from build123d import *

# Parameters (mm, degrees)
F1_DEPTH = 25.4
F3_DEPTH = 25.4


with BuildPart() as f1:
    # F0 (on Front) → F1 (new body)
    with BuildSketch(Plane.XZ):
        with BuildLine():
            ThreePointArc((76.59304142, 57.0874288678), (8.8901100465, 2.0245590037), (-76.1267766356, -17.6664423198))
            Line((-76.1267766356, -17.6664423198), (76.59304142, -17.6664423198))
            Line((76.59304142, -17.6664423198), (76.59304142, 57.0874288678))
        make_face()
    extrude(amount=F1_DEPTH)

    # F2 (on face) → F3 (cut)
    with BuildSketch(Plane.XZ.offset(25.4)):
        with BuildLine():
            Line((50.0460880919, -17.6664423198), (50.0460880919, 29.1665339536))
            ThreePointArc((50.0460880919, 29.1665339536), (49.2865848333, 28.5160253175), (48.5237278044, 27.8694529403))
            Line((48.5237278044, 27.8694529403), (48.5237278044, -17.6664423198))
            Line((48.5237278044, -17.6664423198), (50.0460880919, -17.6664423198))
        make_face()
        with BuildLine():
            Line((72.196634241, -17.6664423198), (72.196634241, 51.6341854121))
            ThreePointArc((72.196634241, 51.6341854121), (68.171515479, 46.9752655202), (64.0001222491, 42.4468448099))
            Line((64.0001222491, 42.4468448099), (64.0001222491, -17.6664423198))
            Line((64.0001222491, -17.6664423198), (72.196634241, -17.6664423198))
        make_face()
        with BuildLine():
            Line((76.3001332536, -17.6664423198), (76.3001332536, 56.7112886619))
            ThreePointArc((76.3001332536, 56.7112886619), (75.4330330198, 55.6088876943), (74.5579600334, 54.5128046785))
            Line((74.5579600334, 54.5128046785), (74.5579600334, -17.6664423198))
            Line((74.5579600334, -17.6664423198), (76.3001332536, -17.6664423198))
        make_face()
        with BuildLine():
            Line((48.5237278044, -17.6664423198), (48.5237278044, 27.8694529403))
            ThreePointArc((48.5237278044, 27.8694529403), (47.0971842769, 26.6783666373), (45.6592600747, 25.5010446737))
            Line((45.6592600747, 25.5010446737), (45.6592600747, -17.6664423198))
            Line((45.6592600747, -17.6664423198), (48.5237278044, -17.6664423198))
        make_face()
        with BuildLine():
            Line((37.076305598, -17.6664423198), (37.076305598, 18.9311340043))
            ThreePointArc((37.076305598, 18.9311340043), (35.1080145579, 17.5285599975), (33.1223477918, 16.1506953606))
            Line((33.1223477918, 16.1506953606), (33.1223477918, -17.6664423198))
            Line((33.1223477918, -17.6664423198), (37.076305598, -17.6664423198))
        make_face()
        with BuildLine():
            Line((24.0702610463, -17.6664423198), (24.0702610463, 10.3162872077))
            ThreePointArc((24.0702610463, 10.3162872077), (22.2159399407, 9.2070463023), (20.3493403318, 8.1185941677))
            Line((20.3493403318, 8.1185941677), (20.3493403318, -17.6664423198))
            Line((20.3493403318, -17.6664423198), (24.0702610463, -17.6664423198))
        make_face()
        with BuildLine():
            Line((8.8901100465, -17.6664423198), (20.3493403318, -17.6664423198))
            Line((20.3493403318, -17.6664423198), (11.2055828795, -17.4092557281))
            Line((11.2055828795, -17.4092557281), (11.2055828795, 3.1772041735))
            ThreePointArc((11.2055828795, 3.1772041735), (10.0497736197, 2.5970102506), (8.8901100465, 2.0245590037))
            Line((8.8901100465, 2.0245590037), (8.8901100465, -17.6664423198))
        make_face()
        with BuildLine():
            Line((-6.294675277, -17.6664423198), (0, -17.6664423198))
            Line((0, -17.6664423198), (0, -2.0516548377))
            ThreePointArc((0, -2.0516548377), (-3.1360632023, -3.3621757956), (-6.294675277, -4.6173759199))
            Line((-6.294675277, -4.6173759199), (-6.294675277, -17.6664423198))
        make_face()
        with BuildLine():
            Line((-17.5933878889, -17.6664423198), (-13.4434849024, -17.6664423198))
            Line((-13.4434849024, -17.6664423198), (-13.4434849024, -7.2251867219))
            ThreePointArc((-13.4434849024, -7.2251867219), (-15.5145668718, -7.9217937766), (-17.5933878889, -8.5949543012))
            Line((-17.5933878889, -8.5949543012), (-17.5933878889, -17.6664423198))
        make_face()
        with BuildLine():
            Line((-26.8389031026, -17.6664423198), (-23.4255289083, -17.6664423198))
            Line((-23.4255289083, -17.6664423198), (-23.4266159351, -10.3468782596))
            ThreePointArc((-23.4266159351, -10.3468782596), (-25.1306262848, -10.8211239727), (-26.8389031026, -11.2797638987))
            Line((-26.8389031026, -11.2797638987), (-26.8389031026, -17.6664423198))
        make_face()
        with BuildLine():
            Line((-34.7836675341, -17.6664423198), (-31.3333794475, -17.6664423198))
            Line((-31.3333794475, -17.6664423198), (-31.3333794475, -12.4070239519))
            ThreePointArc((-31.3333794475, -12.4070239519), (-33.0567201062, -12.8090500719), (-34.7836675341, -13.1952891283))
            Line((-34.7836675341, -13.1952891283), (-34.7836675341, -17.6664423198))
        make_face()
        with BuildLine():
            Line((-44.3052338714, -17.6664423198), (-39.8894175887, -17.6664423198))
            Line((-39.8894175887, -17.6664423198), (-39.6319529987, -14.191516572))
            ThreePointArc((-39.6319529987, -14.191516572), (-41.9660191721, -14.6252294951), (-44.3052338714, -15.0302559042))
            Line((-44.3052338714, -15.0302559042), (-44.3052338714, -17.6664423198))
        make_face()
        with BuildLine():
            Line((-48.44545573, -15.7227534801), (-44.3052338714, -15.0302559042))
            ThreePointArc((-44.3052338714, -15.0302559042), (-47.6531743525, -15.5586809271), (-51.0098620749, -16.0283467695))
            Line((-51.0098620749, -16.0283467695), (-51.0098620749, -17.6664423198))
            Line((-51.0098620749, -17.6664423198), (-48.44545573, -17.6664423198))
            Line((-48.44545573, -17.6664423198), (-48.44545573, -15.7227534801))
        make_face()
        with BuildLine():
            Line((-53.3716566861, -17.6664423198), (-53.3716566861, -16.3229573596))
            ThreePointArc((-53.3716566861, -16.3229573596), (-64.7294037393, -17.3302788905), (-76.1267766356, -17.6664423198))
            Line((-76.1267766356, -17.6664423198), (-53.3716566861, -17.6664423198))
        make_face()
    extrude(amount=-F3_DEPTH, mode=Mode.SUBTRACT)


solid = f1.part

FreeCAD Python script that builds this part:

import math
import FreeCAD as App
import Part
import Sketcher
Q = App.Units.Quantity

doc = App.newDocument("Part")
params = doc.addObject("Spreadsheet::Sheet", "Params")
for row, (alias, value) in enumerate([
    ("pad1_length", "1 in"),
    ("pocket1_length", "1 in"),
], start=1):
    params.set(f"A{row}", alias)
    params.set(f"B{row}", "=" + value)
    params.setAlias(f"B{row}", alias)

body = doc.addObject("PartDesign::Body", "Body")
body.AllowCompound = True

# Sketch on XZ plane
sketch1 = body.newObject("Sketcher::SketchObject", "Sketch")
sketch1.AttachmentSupport = (doc.getObject("XZ_Plane"), [""])
sketch1.MapMode = "FlatFace"
sketch1.addGeometry(Part.ArcOfCircle(Part.Circle(App.Vector(-76, 176, 0), App.Vector(0, 0, 1), 193), math.radians(-90), math.radians(-38)), False)
sketch1.addGeometry(Part.LineSegment(App.Vector(-76, -18, 0), App.Vector(77, -18, 0)), False)
sketch1.addGeometry(Part.LineSegment(App.Vector(77, -18, 0), App.Vector(77, 57, 0)), False)
sketch1.addConstraint(Sketcher.Constraint("Tangent", 0, 1, 1, 1))
sketch1.addConstraint(Sketcher.Constraint("Coincident", 1, 2, 2, 1))
sketch1.addConstraint(Sketcher.Constraint("Coincident", 2, 2, 0, 2))
sketch1.addConstraint(Sketcher.Constraint("Horizontal", 1))
sketch1.addConstraint(Sketcher.Constraint("Vertical", 2))
sketch1.addConstraint(Sketcher.Constraint("Radius", 0, Q("193.377839 mm")))
sketch1.addConstraint(Sketcher.Constraint("DistanceX", 1, 1, 1, 2, Q("152.719818 mm")))
sketch1.addConstraint(Sketcher.Constraint("DistanceX", -1, 1, 1, 2, Q("76.593041 mm")))
sketch1.addConstraint(Sketcher.Constraint("DistanceY", -1, 1, 2, 2, Q("57.087429 mm")))
pad1 = body.newObject("PartDesign::Pad", "Pad")
pad1.Profile = sketch1
pad1.setExpression("Length", "Params.pad1_length")

# Sketch on XZ plane
sketch2 = body.newObject("Sketcher::SketchObject", "Sketch001")
sketch2.AttachmentSupport = (doc.getObject("XZ_Plane"), [""])
sketch2.MapMode = "FlatFace"
sketch2.AttachmentOffset = App.Placement(App.Vector(0, 0, 1 * 25.4), App.Rotation())
sketch2.addGeometry(Part.LineSegment(App.Vector(50, -17.7, 0), App.Vector(50, 29.2, 0)), False)
sketch2.addGeometry(Part.ArcOfCircle(Part.Circle(App.Vector(-76.1, 175.7, 0), App.Vector(0, 0, 1), 193.4), math.radians(-49.86), math.radians(-49.27)), False)
sketch2.addGeometry(Part.ArcOfCircle(Part.Circle(App.Vector(-76.1, 175.7, 0), App.Vector(0, 0, 1), 193.4), math.radians(-50.97), math.radians(-49.86)), False)
sketch2.addGeometry(Part.LineSegment(App.Vector(45.7, 25.5, 0), App.Vector(45.7, -17.7, 0)), False)
sketch2.addGeometry(Part.LineSegment(App.Vector(45.7, -17.7, 0), App.Vector(50, -17.7, 0)), False)
sketch2.addGeometry(Part.LineSegment(App.Vector(72.2, -17.7, 0), App.Vector(72.2, 51.6, 0)), False)
sketch2.addGeometry(Part.ArcOfCircle(Part.Circle(App.Vector(-76.1, 175.7, 0), App.Vector(0, 0, 1), 193.4), math.radians(-43.56), math.radians(-39.91)), False)
sketch2.addGeometry(Part.LineSegment(App.Vector(64, 42.4, 0), App.Vector(64, -17.7, 0)), False)
sketch2.addGeometry(Part.LineSegment(App.Vector(64, -17.7, 0), App.Vector(72.2, -17.7, 0)), False)
sketch2.addGeometry(Part.LineSegment(App.Vector(76.3, -17.7, 0), App.Vector(76.3, 56.7, 0)), False)
sketch2.addGeometry(Part.ArcOfCircle(Part.Circle(App.Vector(-76.1, 175.7, 0), App.Vector(0, 0, 1), 193.4), math.radians(-38.81), math.radians(-37.98)), False)
sketch2.addGeometry(Part.LineSegment(App.Vector(74.6, 54.5, 0), App.Vector(74.6, -17.7, 0)), False)
sketch2.addGeometry(Part.LineSegment(App.Vector(74.6, -17.7, 0), App.Vector(76.3, -17.7, 0)), False)
sketch2.addGeometry(Part.LineSegment(App.Vector(37.1, -17.7, 0), App.Vector(37.1, 18.9, 0)), False)
sketch2.addGeometry(Part.ArcOfCircle(Part.Circle(App.Vector(-76.1, 175.7, 0), App.Vector(0, 0, 1), 193.4), math.radians(-55.6), math.radians(-54.17)), False)
sketch2.addGeometry(Part.LineSegment(App.Vector(33.1, 16.2, 0), App.Vector(33.1, -17.7, 0)), False)
sketch2.addGeometry(Part.LineSegment(App.Vector(33.1, -17.7, 0), App.Vector(37.1, -17.7, 0)), False)
sketch2.addGeometry(Part.LineSegment(App.Vector(24.1, -17.7, 0), App.Vector(24.1, 10.3, 0)), False)
sketch2.addGeometry(Part.ArcOfCircle(Part.Circle(App.Vector(-76.1, 175.7, 0), App.Vector(0, 0, 1), 193.4), math.radians(-60.07), math.radians(-58.79)), False)
sketch2.addGeometry(Part.LineSegment(App.Vector(20.3, 8.1, 0), App.Vector(20.3, -17.7, 0)), False)
sketch2.addGeometry(Part.LineSegment(App.Vector(20.3, -17.7, 0), App.Vector(24.1, -17.7, 0)), False)
sketch2.addGeometry(Part.LineSegment(App.Vector(8.9, -17.7, 0), App.Vector(20.3, -17.7, 0)), False)
sketch2.addGeometry(Part.LineSegment(App.Vector(20.3, -17.7, 0), App.Vector(11.2, -17.4, 0)), False)
sketch2.addGeometry(Part.LineSegment(App.Vector(11.2, -17.4, 0), App.Vector(11.2, 3.2, 0)), False)
sketch2.addGeometry(Part.ArcOfCircle(Part.Circle(App.Vector(-76.1, 175.7, 0), App.Vector(0, 0, 1), 193.4), math.radians(-63.92), math.radians(-63.15)), False)
sketch2.addGeometry(Part.LineSegment(App.Vector(8.9, 2, 0), App.Vector(8.9, -17.7, 0)), False)
sketch2.addGeometry(Part.LineSegment(App.Vector(-6.3, -17.7, 0), App.Vector(0, -17.7, 0)), False)
sketch2.addGeometry(Part.LineSegment(App.Vector(0, -17.7, 0), App.Vector(0, -2.1, 0)), False)
sketch2.addGeometry(Part.ArcOfCircle(Part.Circle(App.Vector(-76.1, 175.7, 0), App.Vector(0, 0, 1), 193.4), math.radians(-68.83), math.radians(-66.82)), False)
sketch2.addGeometry(Part.LineSegment(App.Vector(-6.3, -4.6, 0), App.Vector(-6.3, -17.7, 0)), False)
sketch2.addGeometry(Part.LineSegment(App.Vector(-17.6, -17.7, 0), App.Vector(-13.4, -17.7, 0)), False)
sketch2.addGeometry(Part.LineSegment(App.Vector(-13.4, -17.7, 0), App.Vector(-13.4, -7.2, 0)), False)
sketch2.addGeometry(Part.ArcOfCircle(Part.Circle(App.Vector(-76.1, 175.7, 0), App.Vector(0, 0, 1), 193.4), math.radians(-72.38), math.radians(-71.09)), False)
sketch2.addGeometry(Part.LineSegment(App.Vector(-17.6, -8.6, 0), App.Vector(-17.6, -17.7, 0)), False)
sketch2.addGeometry(Part.LineSegment(App.Vector(-26.8, -17.7, 0), App.Vector(-23.4, -17.7, 0)), False)
sketch2.addGeometry(Part.LineSegment(App.Vector(-23.4, -17.7, 0), App.Vector(-23.4, -10.3, 0)), False)
sketch2.addGeometry(Part.ArcOfCircle(Part.Circle(App.Vector(-76.1, 175.7, 0), App.Vector(0, 0, 1), 193.4), math.radians(-75.23), math.radians(-74.19)), False)
sketch2.addGeometry(Part.LineSegment(App.Vector(-26.8, -11.3, 0), App.Vector(-26.8, -17.7, 0)), False)
sketch2.addGeometry(Part.LineSegment(App.Vector(-34.8, -17.7, 0), App.Vector(-31.3, -17.7, 0)), False)
sketch2.addGeometry(Part.LineSegment(App.Vector(-31.3, -17.7, 0), App.Vector(-31.3, -12.4, 0)), False)
sketch2.addGeometry(Part.ArcOfCircle(Part.Circle(App.Vector(-76.1, 175.7, 0), App.Vector(0, 0, 1), 193.4), math.radians(-77.66), math.radians(-76.61)), False)
sketch2.addGeometry(Part.LineSegment(App.Vector(-34.8, -13.2, 0), App.Vector(-34.8, -17.7, 0)), False)
sketch2.addGeometry(Part.LineSegment(App.Vector(-44.3, -17.7, 0), App.Vector(-39.9, -17.7, 0)), False)
sketch2.addGeometry(Part.LineSegment(App.Vector(-39.9, -17.7, 0), App.Vector(-39.6, -14.2, 0)), False)
sketch2.addGeometry(Part.ArcOfCircle(Part.Circle(App.Vector(-76.1, 175.7, 0), App.Vector(0, 0, 1), 193.4), math.radians(-80.53), math.radians(-79.12)), False)
sketch2.addGeometry(Part.LineSegment(App.Vector(-44.3, -15, 0), App.Vector(-44.3, -17.7, 0)), False)
sketch2.addGeometry(Part.LineSegment(App.Vector(-48.4, -15.7, 0), App.Vector(-44.3, -15, 0)), False)
sketch2.addGeometry(Part.ArcOfCircle(Part.Circle(App.Vector(-76.1, 175.7, 0), App.Vector(0, 0, 1), 193.4), math.radians(-82.54), math.radians(-80.53)), False)
sketch2.addGeometry(Part.LineSegment(App.Vector(-51, -16, 0), App.Vector(-51, -17.7, 0)), False)
sketch2.addGeometry(Part.LineSegment(App.Vector(-51, -17.7, 0), App.Vector(-48.4, -17.7, 0)), False)
sketch2.addGeometry(Part.LineSegment(App.Vector(-48.4, -17.7, 0), App.Vector(-48.4, -15.7, 0)), False)
sketch2.addGeometry(Part.LineSegment(App.Vector(-53.4, -17.7, 0), App.Vector(-53.4, -16.3, 0)), False)
sketch2.addGeometry(Part.ArcOfCircle(Part.Circle(App.Vector(-76.1, 175.7, 0), App.Vector(0, 0, 1), 193.4), math.radians(-90), math.radians(-83.24)), False)
sketch2.addGeometry(Part.LineSegment(App.Vector(-76.1, -17.7, 0), App.Vector(-53.4, -17.7, 0)), False)
sketch2.addConstraint(Sketcher.Constraint("Coincident", 0, 2, 1, 2))
sketch2.addConstraint(Sketcher.Constraint("Tangent", 1, 1, 2, 2))
sketch2.addConstraint(Sketcher.Constraint("Coincident", 2, 1, 3, 1))
sketch2.addConstraint(Sketcher.Constraint("Coincident", 3, 2, 4, 1))
sketch2.addConstraint(Sketcher.Constraint("Coincident", 4, 2, 0, 1))
sketch2.addConstraint(Sketcher.Constraint("Coincident", 5, 2, 6, 2))
sketch2.addConstraint(Sketcher.Constraint("Coincident", 6, 1, 7, 1))
sketch2.addConstraint(Sketcher.Constraint("Coincident", 7, 2, 8, 1))
sketch2.addConstraint(Sketcher.Constraint("Coincident", 8, 2, 5, 1))
sketch2.addConstraint(Sketcher.Constraint("Coincident", 9, 2, 10, 2))
sketch2.addConstraint(Sketcher.Constraint("Coincident", 10, 1, 11, 1))
sketch2.addConstraint(Sketcher.Constraint("Coincident", 11, 2, 12, 1))
sketch2.addConstraint(Sketcher.Constraint("Coincident", 12, 2, 9, 1))
sketch2.addConstraint(Sketcher.Constraint("Coincident", 13, 2, 14, 2))
sketch2.addConstraint(Sketcher.Constraint("Coincident", 14, 1, 15, 1))
sketch2.addConstraint(Sketcher.Constraint("Coincident", 15, 2, 16, 1))
sketch2.addConstraint(Sketcher.Constraint("Coincident", 16, 2, 13, 1))
sketch2.addConstraint(Sketcher.Constraint("Coincident", 17, 2, 18, 2))
sketch2.addConstraint(Sketcher.Constraint("Coincident", 18, 1, 19, 1))
sketch2.addConstraint(Sketcher.Constraint("Coincident", 19, 2, 20, 1))
sketch2.addConstraint(Sketcher.Constraint("Coincident", 20, 2, 17, 1))
sketch2.addConstraint(Sketcher.Constraint("Coincident", 21, 2, 22, 1))
sketch2.addConstraint(Sketcher.Constraint("Coincident", 22, 2, 23, 1))
sketch2.addConstraint(Sketcher.Constraint("Coincident", 23, 2, 24, 2))
sketch2.addConstraint(Sketcher.Constraint("Coincident", 24, 1, 25, 1))
sketch2.addConstraint(Sketcher.Constraint("Coincident", 25, 2, 21, 1))
sketch2.addConstraint(Sketcher.Constraint("Coincident", 26, 2, 27, 1))
sketch2.addConstraint(Sketcher.Constraint("Coincident", 27, 2, 28, 2))
sketch2.addConstraint(Sketcher.Constraint("Coincident", 28, 1, 29, 1))
sketch2.addConstraint(Sketcher.Constraint("Coincident", 29, 2, 26, 1))
sketch2.addConstraint(Sketcher.Constraint("Coincident", 30, 2, 31, 1))
sketch2.addConstraint(Sketcher.Constraint("Coincident", 31, 2, 32, 2))
sketch2.addConstraint(Sketcher.Constraint("Coincident", 32, 1, 33, 1))
sketch2.addConstraint(Sketcher.Constraint("Coincident", 33, 2, 30, 1))
sketch2.addConstraint(Sketcher.Constraint("Coincident", 34, 2, 35, 1))
sketch2.addConstraint(Sketcher.Constraint("Coincident", 35, 2, 36, 2))
sketch2.addConstraint(Sketcher.Constraint("Coincident", 36, 1, 37, 1))
sketch2.addConstraint(Sketcher.Constraint("Coincident", 37, 2, 34, 1))
sketch2.addConstraint(Sketcher.Constraint("Coincident", 38, 2, 39, 1))
sketch2.addConstraint(Sketcher.Constraint("Coincident", 39, 2, 40, 2))
sketch2.addConstraint(Sketcher.Constraint("Coincident", 40, 1, 41, 1))
sketch2.addConstraint(Sketcher.Constraint("Coincident", 41, 2, 38, 1))
sketch2.addConstraint(Sketcher.Constraint("Coincident", 42, 2, 43, 1))
sketch2.addConstraint(Sketcher.Constraint("Coincident", 43, 2, 44, 2))
sketch2.addConstraint(Sketcher.Constraint("Coincident", 44, 1, 45, 1))
sketch2.addConstraint(Sketcher.Constraint("Coincident", 45, 2, 42, 1))
sketch2.addConstraint(Sketcher.Constraint("Coincident", 46, 2, 47, 2))
sketch2.addConstraint(Sketcher.Constraint("Coincident", 47, 1, 48, 1))
sketch2.addConstraint(Sketcher.Constraint("Coincident", 48, 2, 49, 1))
sketch2.addConstraint(Sketcher.Constraint("Coincident", 49, 2, 50, 1))
sketch2.addConstraint(Sketcher.Constraint("Coincident", 50, 2, 46, 1))
sketch2.addConstraint(Sketcher.Constraint("Coincident", 51, 2, 52, 2))
sketch2.addConstraint(Sketcher.Constraint("Tangent", 52, 1, 53, 1))
sketch2.addConstraint(Sketcher.Constraint("Coincident", 53, 2, 51, 1))
sketch2.addConstraint(Sketcher.Constraint("Vertical", 0))
sketch2.addConstraint(Sketcher.Constraint("Vertical", 3))
sketch2.addConstraint(Sketcher.Constraint("Horizontal", 4))
sketch2.addConstraint(Sketcher.Constraint("Vertical", 5))
sketch2.addConstraint(Sketcher.Constraint("Vertical", 7))
sketch2.addConstraint(Sketcher.Constraint("Horizontal", 8))
sketch2.addConstraint(Sketcher.Constraint("Vertical", 9))
sketch2.addConstraint(Sketcher.Constraint("Vertical", 11))
sketch2.addConstraint(Sketcher.Constraint("Horizontal", 12))
sketch2.addConstraint(Sketcher.Constraint("Vertical", 13))
sketch2.addConstraint(Sketcher.Constraint("Vertical", 15))
sketch2.addConstraint(Sketcher.Constraint("Horizontal", 16))
sketch2.addConstraint(Sketcher.Constraint("Vertical", 17))
sketch2.addConstraint(Sketcher.Constraint("Vertical", 19))
sketch2.addConstraint(Sketcher.Constraint("Horizontal", 20))
sketch2.addConstraint(Sketcher.Constraint("Horizontal", 21))
sketch2.addConstraint(Sketcher.Constraint("Vertical", 23))
sketch2.addConstraint(Sketcher.Constraint("Vertical", 25))
sketch2.addConstraint(Sketcher.Constraint("Horizontal", 26))
sketch2.addConstraint(Sketcher.Constraint("Vertical", 27))
sketch2.addConstraint(Sketcher.Constraint("Vertical", 29))
sketch2.addConstraint(Sketcher.Constraint("Horizontal", 30))
sketch2.addConstraint(Sketcher.Constraint("Vertical", 31))
sketch2.addConstraint(Sketcher.Constraint("Vertical", 33))
sketch2.addConstraint(Sketcher.Constraint("Horizontal", 34))
sketch2.addConstraint(Sketcher.Constraint("Vertical", 37))
sketch2.addConstraint(Sketcher.Constraint("Horizontal", 38))
sketch2.addConstraint(Sketcher.Constraint("Vertical", 39))
sketch2.addConstraint(Sketcher.Constraint("Vertical", 41))
sketch2.addConstraint(Sketcher.Constraint("Horizontal", 42))
sketch2.addConstraint(Sketcher.Constraint("Vertical", 45))
sketch2.addConstraint(Sketcher.Constraint("Vertical", 48))
sketch2.addConstraint(Sketcher.Constraint("Horizontal", 49))
sketch2.addConstraint(Sketcher.Constraint("Vertical", 50))
sketch2.addConstraint(Sketcher.Constraint("Vertical", 51))
sketch2.addConstraint(Sketcher.Constraint("Horizontal", 53))
sketch2.addConstraint(Sketcher.Constraint("Coincident", 6, 3, 1, 3))
sketch2.addConstraint(Sketcher.Constraint("Coincident", 10, 3, 1, 3))
sketch2.addConstraint(Sketcher.Constraint("Coincident", 14, 3, 1, 3))
sketch2.addConstraint(Sketcher.Constraint("Coincident", 18, 3, 1, 3))
sketch2.addConstraint(Sketcher.Constraint("Coincident", 24, 3, 1, 3))
sketch2.addConstraint(Sketcher.Constraint("Coincident", 28, 3, 1, 3))
sketch2.addConstraint(Sketcher.Constraint("Coincident", 32, 3, 1, 3))
sketch2.addConstraint(Sketcher.Constraint("Coincident", 36, 3, 1, 3))
sketch2.addConstraint(Sketcher.Constraint("Coincident", 40, 3, 1, 3))
sketch2.addConstraint(Sketcher.Constraint("Coincident", 44, 3, 1, 3))
sketch2.addConstraint(Sketcher.Constraint("Coincident", 47, 3, 1, 3))
sketch2.addConstraint(Sketcher.Constraint("Coincident", 52, 3, 1, 3))
sketch2.addConstraint(Sketcher.Constraint("Coincident", 21, 2, 19, 2))
sketch2.addConstraint(Sketcher.Constraint("Coincident", 46, 2, 44, 1))
sketch2.addConstraint(Sketcher.Constraint("Equal", 2, 6))
sketch2.addConstraint(Sketcher.Constraint("Equal", 6, 10))
sketch2.addConstraint(Sketcher.Constraint("Equal", 10, 14))
sketch2.addConstraint(Sketcher.Constraint("Equal", 14, 18))
sketch2.addConstraint(Sketcher.Constraint("Equal", 18, 24))
sketch2.addConstraint(Sketcher.Constraint("Equal", 24, 28))
sketch2.addConstraint(Sketcher.Constraint("Equal", 28, 32))
sketch2.addConstraint(Sketcher.Constraint("Equal", 32, 36))
sketch2.addConstraint(Sketcher.Constraint("Equal", 36, 40))
sketch2.addConstraint(Sketcher.Constraint("Equal", 40, 44))
sketch2.addConstraint(Sketcher.Constraint("Equal", 47, 52))
sketch2.addConstraint(Sketcher.Constraint("PointOnObject", 26, 2, -2))
sketch2.addConstraint(Sketcher.Constraint("Horizontal", 4, 2, 7, 2))
sketch2.addConstraint(Sketcher.Constraint("Horizontal", 8, 2, 11, 2))
sketch2.addConstraint(Sketcher.Constraint("Horizontal", 12, 2, 15, 2))
sketch2.addConstraint(Sketcher.Constraint("Horizontal", 16, 2, 19, 2))
sketch2.addConstraint(Sketcher.Constraint("Horizontal", 25, 2, 26, 2))
sketch2.addConstraint(Sketcher.Constraint("Horizontal", 29, 2, 30, 2))
sketch2.addConstraint(Sketcher.Constraint("Horizontal", 33, 2, 34, 2))
sketch2.addConstraint(Sketcher.Constraint("Horizontal", 37, 2, 38, 2))
sketch2.addConstraint(Sketcher.Constraint("Horizontal", 41, 2, 42, 2))
sketch2.addConstraint(Sketcher.Constraint("Horizontal", 45, 2, 48, 2))
sketch2.addConstraint(Sketcher.Constraint("Horizontal", 49, 2, 52, 1))
sketch2.addConstraint(Sketcher.Constraint("Radius", 2, Q("193.377839 mm")))
sketch2.addConstraint(Sketcher.Constraint("DistanceY", 25, 2, 25, 1, Q("19.691001 mm")))
sketch2.addConstraint(Sketcher.Constraint("Radius", 1, Q("193.377837 mm")))
sketch2.addConstraint(Sketcher.Constraint("DistanceX", 4, 1, 4, 2, Q("4.386828 mm")))
sketch2.addConstraint(Sketcher.Constraint("DistanceX", 8, 1, 8, 2, Q("8.196512 mm")))
sketch2.addConstraint(Sketcher.Constraint("DistanceX", 20, 1, 20, 2, Q("3.720921 mm")))
sketch2.addConstraint(Sketcher.Constraint("DistanceX", 21, 1, 21, 2, Q("11.45923 mm")))
sketch2.addConstraint(Sketcher.Constraint("DistanceX", 38, 1, 38, 2, Q("3.450288 mm")))
sketch2.addConstraint(Sketcher.Constraint("DistanceX", 53, 1, 53, 2, Q("22.75512 mm")))
sketch2.addConstraint(Sketcher.Constraint("DistanceY", 9, 1, 9, 2, Q("74.377731 mm")))
sketch2.addConstraint(Sketcher.Constraint("DistanceY", 23, 1, 23, 2, Q("20.58646 mm")))
sketch2.addConstraint(Sketcher.Constraint("DistanceY", 33, 2, 33, 1, Q("9.071488 mm")))
sketch2.addConstraint(Sketcher.Constraint("DistanceY", 37, 2, 37, 1, Q("6.386678 mm")))
sketch2.addConstraint(Sketcher.Constraint("DistanceY", 39, 1, 39, 2, Q("5.259418 mm")))
sketch2.addConstraint(Sketcher.Constraint("DistanceY", 50, 1, 50, 2, Q("1.943689 mm")))
sketch2.addConstraint(Sketcher.Constraint("Distance", 43, Q("3.484451 mm")))
sketch2.addConstraint(Sketcher.Constraint("DistanceX", 12, 1, 12, 2, Q("1.742173 mm")))
sketch2.addConstraint(Sketcher.Constraint("DistanceX", 16, 1, 16, 2, Q("3.953958 mm")))
sketch2.addConstraint(Sketcher.Constraint("DistanceX", 26, 1, 26, 2, Q("6.294675 mm")))
sketch2.addConstraint(Sketcher.Constraint("DistanceX", 30, 1, 30, 2, Q("4.149903 mm")))
sketch2.addConstraint(Sketcher.Constraint("DistanceX", 34, 1, 34, 2, Q("3.413374 mm")))
sketch2.addConstraint(Sketcher.Constraint("DistanceX", 42, 1, 42, 2, Q("4.415816 mm")))
sketch2.addConstraint(Sketcher.Constraint("DistanceX", 49, 1, 49, 2, Q("2.564406 mm")))
sketch2.addConstraint(Sketcher.Constraint("DistanceY", 0, 1, 0, 2, Q("46.832976 mm")))
sketch2.addConstraint(Sketcher.Constraint("DistanceY", 5, 1, 5, 2, Q("69.300628 mm")))
sketch2.addConstraint(Sketcher.Constraint("DistanceY", 13, 1, 13, 2, Q("36.597576 mm")))
sketch2.addConstraint(Sketcher.Constraint("DistanceY", 27, 1, 27, 2, Q("15.614787 mm")))
sketch2.addConstraint(Sketcher.Constraint("DistanceY", 45, 2, 45, 1, Q("2.636186 mm")))
sketch2.addConstraint(Sketcher.Constraint("DistanceY", 48, 2, 48, 1, Q("1.638096 mm")))
sketch2.addConstraint(Sketcher.Constraint("DistanceY", -1, 1, 9, 2, Q("56.711289 mm")))
sketch2.addConstraint(Sketcher.Constraint("DistanceY", 35, 2, -1, 1, Q("10.346878 mm")))
sketch2.addConstraint(Sketcher.Constraint("Distance", 22, Q("9.147374 mm")))
sketch2.addConstraint(Sketcher.Constraint("DistanceX", -1, 1, 1, 1, Q("48.523728 mm")))
pocket1 = body.newObject("PartDesign::Pocket", "Pocket")
pocket1.Profile = sketch2
pocket1.setExpression("Length", "Params.pocket1_length")

doc.recompute()
